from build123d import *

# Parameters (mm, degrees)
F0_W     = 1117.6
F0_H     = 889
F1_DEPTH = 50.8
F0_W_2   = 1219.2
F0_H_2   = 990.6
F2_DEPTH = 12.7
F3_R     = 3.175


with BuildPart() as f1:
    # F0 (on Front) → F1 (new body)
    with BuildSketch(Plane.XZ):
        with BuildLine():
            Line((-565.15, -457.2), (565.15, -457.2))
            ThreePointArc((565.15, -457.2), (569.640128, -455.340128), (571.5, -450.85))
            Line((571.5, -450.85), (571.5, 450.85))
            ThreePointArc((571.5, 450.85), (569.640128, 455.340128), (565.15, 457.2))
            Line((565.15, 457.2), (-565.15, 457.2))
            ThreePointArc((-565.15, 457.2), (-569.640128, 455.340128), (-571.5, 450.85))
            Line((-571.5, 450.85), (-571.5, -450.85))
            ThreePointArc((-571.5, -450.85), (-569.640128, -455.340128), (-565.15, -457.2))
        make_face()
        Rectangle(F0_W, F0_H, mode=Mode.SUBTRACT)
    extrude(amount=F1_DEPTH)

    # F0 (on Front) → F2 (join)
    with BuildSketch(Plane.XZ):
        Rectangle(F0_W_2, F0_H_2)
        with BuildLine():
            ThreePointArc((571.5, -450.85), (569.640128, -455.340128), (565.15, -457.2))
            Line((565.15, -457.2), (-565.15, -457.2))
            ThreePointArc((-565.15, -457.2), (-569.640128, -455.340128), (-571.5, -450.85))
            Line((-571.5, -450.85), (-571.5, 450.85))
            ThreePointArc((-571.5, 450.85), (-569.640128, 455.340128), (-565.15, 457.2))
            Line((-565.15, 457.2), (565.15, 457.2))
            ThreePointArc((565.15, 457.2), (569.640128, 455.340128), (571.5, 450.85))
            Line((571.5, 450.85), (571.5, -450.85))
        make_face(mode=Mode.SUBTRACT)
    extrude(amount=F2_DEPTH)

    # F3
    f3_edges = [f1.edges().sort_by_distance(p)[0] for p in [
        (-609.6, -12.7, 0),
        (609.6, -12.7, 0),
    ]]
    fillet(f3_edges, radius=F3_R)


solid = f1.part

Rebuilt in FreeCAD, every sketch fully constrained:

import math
import FreeCAD as App
import Part
import Sketcher
from FreeCAD import Vector
Q = App.Units.Quantity


def edges_at(feature, points):
    """Names of the edges that pass closest to the given points."""
    edges = feature.Shape.Edges
    near = lambda p: min(range(len(edges)), key=lambda i: edges[i].distToShape(Part.Vertex(*p))[0])
    return sorted({f"Edge{near(p) + 1}" for p in points})

doc = App.newDocument("Part")
body = doc.addObject("PartDesign::Body", "Body")

# Sketch on XZ plane
sketch1 = body.newObject("Sketcher::SketchObject", "Sketch")
sketch1.AttachmentSupport = (doc.getObject("XZ_Plane"), [""])
sketch1.MapMode = "FlatFace"
sketch1.addGeometry(Part.LineSegment(Vector(-565, -457, 0), Vector(565, -457, 0)), False)
sketch1.addGeometry(Part.ArcOfCircle(Part.Circle(Vector(565, -451, 0), Vector(0, 0, 1), 6), math.radians(-90), math.radians(0)), False)
sketch1.addGeometry(Part.LineSegment(Vector(572, -451, 0), Vector(572, 451, 0)), False)
sketch1.addGeometry(Part.ArcOfCircle(Part.Circle(Vector(565, 451, 0), Vector(0, 0, 1), 6), math.radians(0), math.radians(90)), False)
sketch1.addGeometry(Part.LineSegment(Vector(565, 457, 0), Vector(-565, 457, 0)), False)
sketch1.addGeometry(Part.ArcOfCircle(Part.Circle(Vector(-565, 451, 0), Vector(0, 0, 1), 6), math.radians(90), math.radians(180)), False)
sketch1.addGeometry(Part.LineSegment(Vector(-572, 451, 0), Vector(-572, -451, 0)), False)
sketch1.addGeometry(Part.ArcOfCircle(Part.Circle(Vector(-565, -451, 0), Vector(0, 0, 1), 6), math.radians(-180), math.radians(-90)), False)
sketch1.addGeometry(Part.LineSegment(Vector(559, -444, 0), Vector(-559, -444, 0)), False)
sketch1.addGeometry(Part.LineSegment(Vector(-559, -444, 0), Vector(-559, 444, 0)), False)
sketch1.addGeometry(Part.LineSegment(Vector(-559, 444, 0), Vector(559, 444, 0)), False)
sketch1.addGeometry(Part.LineSegment(Vector(559, 444, 0), Vector(559, -444, 0)), False)
sketch1.addConstraint(Sketcher.Constraint("Tangent", 0, 2, 1, 1))
sketch1.addConstraint(Sketcher.Constraint("Tangent", 1, 2, 2, 1))
sketch1.addConstraint(Sketcher.Constraint("Tangent", 2, 2, 3, 1))
sketch1.addConstraint(Sketcher.Constraint("Tangent", 3, 2, 4, 1))
sketch1.addConstraint(Sketcher.Constraint("Tangent", 4, 2, 5, 1))
sketch1.addConstraint(Sketcher.Constraint("Tangent", 5, 2, 6, 1))
sketch1.addConstraint(Sketcher.Constraint("Tangent", 6, 2, 7, 1))
sketch1.addConstraint(Sketcher.Constraint("Tangent", 7, 2, 0, 1))
sketch1.addConstraint(Sketcher.Constraint("Coincident", 8, 2, 9, 1))
sketch1.addConstraint(Sketcher.Constraint("Coincident", 9, 2, 10, 1))
sketch1.addConstraint(Sketcher.Constraint("Coincident", 10, 2, 11, 1))
sketch1.addConstraint(Sketcher.Constraint("Coincident", 11, 2, 8, 1))
sketch1.addConstraint(Sketcher.Constraint("Horizontal", 0))
sketch1.addConstraint(Sketcher.Constraint("Vertical", 2))
sketch1.addConstraint(Sketcher.Constraint("Horizontal", 4))
sketch1.addConstraint(Sketcher.Constraint("Vertical", 6))
sketch1.addConstraint(Sketcher.Constraint("Horizontal", 8))
sketch1.addConstraint(Sketcher.Constraint("Vertical", 9))
sketch1.addConstraint(Sketcher.Constraint("Horizontal", 10))
sketch1.addConstraint(Sketcher.Constraint("Vertical", 11))
sketch1.addConstraint(Sketcher.Constraint("Equal", 1, 3))
sketch1.addConstraint(Sketcher.Constraint("Equal", 3, 5))
sketch1.addConstraint(Sketcher.Constraint("Equal", 5, 7))
sketch1.addConstraint(Sketcher.Constraint("Symmetric", 1, 3, 5, 3, -1, 1))
sketch1.addConstraint(Sketcher.Constraint("Symmetric", 8, 2, 10, 2, -1, 1))
sketch1.addConstraint(Sketcher.Constraint("DistanceX", 8, 2, 8, 1, Q("44 in")))
sketch1.addConstraint(Sketcher.Constraint("DistanceY", 9, 1, 9, 2, Q("35 in")))
sketch1.addConstraint(Sketcher.Constraint("Radius", 1, Q("0.25 in")))
sketch1.addConstraint(Sketcher.Constraint("DistanceX", 0, 1, 0, 2, Q("44.5 in")))
sketch1.addConstraint(Sketcher.Constraint("DistanceY", 2, 1, 2, 2, Q("35.5 in")))
pad1 = body.newObject("PartDesign::Pad", "Pad")
pad1.Profile = sketch1
pad1.Length = Q("2 in")

# Sketch on XZ plane
sketch2 = body.newObject("Sketcher::SketchObject", "Sketch001")
sketch2.AttachmentSupport = (doc.getObject("XZ_Plane"), [""])
sketch2.MapMode = "FlatFace"
sketch2.addGeometry(Part.LineSegment(Vector(-610, 495, 0), Vector(-610, -495, 0)), False)
sketch2.addGeometry(Part.LineSegment(Vector(-610, -495, 0), Vector(610, -495, 0)), False)
sketch2.addGeometry(Part.LineSegment(Vector(610, -495, 0), Vector(610, 495, 0)), False)
sketch2.addGeometry(Part.LineSegment(Vector(610, 495, 0), Vector(-610, 495, 0)), False)
sketch2.addGeometry(Part.LineSegment(Vector(572, 451, 0), Vector(572, -451, 0)), False)
sketch2.addGeometry(Part.ArcOfCircle(Part.Circle(Vector(565, -451, 0), Vector(0, 0, 1), 6), math.radians(-90), math.radians(0)), False)
sketch2.addGeometry(Part.LineSegment(Vector(565, -457, 0), Vector(-565, -457, 0)), False)
sketch2.addGeometry(Part.ArcOfCircle(Part.Circle(Vector(-565, -451, 0), Vector(0, 0, 1), 6), math.radians(-180), math.radians(-90)), False)
sketch2.addGeometry(Part.LineSegment(Vector(-572, -451, 0), Vector(-572, 451, 0)), False)
sketch2.addGeometry(Part.ArcOfCircle(Part.Circle(Vector(-565, 451, 0), Vector(0, 0, 1), 6), math.radians(90), math.radians(180)), False)
sketch2.addGeometry(Part.LineSegment(Vector(-565, 457, 0), Vector(565, 457, 0)), False)
sketch2.addGeometry(Part.ArcOfCircle(Part.Circle(Vector(565, 451, 0), Vector(0, 0, 1), 6), math.radians(0), math.radians(90)), False)
sketch2.addConstraint(Sketcher.Constraint("Coincident", 0, 2, 1, 1))
sketch2.addConstraint(Sketcher.Constraint("Coincident", 1, 2, 2, 1))
sketch2.addConstraint(Sketcher.Constraint("Coincident", 2, 2, 3, 1))
sketch2.addConstraint(Sketcher.Constraint("Coincident", 3, 2, 0, 1))
sketch2.addConstraint(Sketcher.Constraint("Tangent", 4, 2, 5, 2))
sketch2.addConstraint(Sketcher.Constraint("Tangent", 5, 1, 6, 1))
sketch2.addConstraint(Sketcher.Constraint("Tangent", 6, 2, 7, 2))
sketch2.addConstraint(Sketcher.Constraint("Tangent", 7, 1, 8, 1))
sketch2.addConstraint(Sketcher.Constraint("Tangent", 8, 2, 9, 2))
sketch2.addConstraint(Sketcher.Constraint("Tangent", 9, 1, 10, 1))
sketch2.addConstraint(Sketcher.Constraint("Tangent", 10, 2, 11, 2))
sketch2.addConstraint(Sketcher.Constraint("Tangent", 11, 1, 4, 1))
sketch2.addConstraint(Sketcher.Constraint("Vertical", 0))
sketch2.addConstraint(Sketcher.Constraint("Horizontal", 1))
sketch2.addConstraint(Sketcher.Constraint("Vertical", 2))
sketch2.addConstraint(Sketcher.Constraint("Horizontal", 3))
sketch2.addConstraint(Sketcher.Constraint("Vertical", 4))
sketch2.addConstraint(Sketcher.Constraint("Horizontal", 6))
sketch2.addConstraint(Sketcher.Constraint("Vertical", 8))
sketch2.addConstraint(Sketcher.Constraint("Horizontal", 10))
sketch2.addConstraint(Sketcher.Constraint("Equal", 5, 7))
sketch2.addConstraint(Sketcher.Constraint("Equal", 7, 9))
sketch2.addConstraint(Sketcher.Constraint("Equal", 9, 11))
sketch2.addConstraint(Sketcher.Constraint("Symmetric", 5, 3, 9, 3, -1, 1))
sketch2.addConstraint(Sketcher.Constraint("Symmetric", 0, 2, 2, 2, -1, 1))
sketch2.addConstraint(Sketcher.Constraint("DistanceX", 1, 1, 1, 2, Q("48 in")))
sketch2.addConstraint(Sketcher.Constraint("DistanceY", 0, 2, 0, 1, Q("39 in")))
sketch2.addConstraint(Sketcher.Constraint("Radius", 5, Q("0.25 in")))
sketch2.addConstraint(Sketcher.Constraint("DistanceX", 6, 2, 6, 1, Q("44.5 in")))
sketch2.addConstraint(Sketcher.Constraint("DistanceY", 4, 2, 4, 1, Q("35.5 in")))
pad2 = body.newObject("PartDesign::Pad", "Pad001")
pad2.Profile = sketch2
pad2.Length = Q("0.5 in")
doc.recompute()

fillet = body.newObject("PartDesign::Fillet", "Fillet")
fillet.Base = (pad2, edges_at(pad2, [(-609.6, -12.7, 0), (609.6, -12.7, 0)]))
fillet.Radius = Q("0.125 in")

doc.recompute()
